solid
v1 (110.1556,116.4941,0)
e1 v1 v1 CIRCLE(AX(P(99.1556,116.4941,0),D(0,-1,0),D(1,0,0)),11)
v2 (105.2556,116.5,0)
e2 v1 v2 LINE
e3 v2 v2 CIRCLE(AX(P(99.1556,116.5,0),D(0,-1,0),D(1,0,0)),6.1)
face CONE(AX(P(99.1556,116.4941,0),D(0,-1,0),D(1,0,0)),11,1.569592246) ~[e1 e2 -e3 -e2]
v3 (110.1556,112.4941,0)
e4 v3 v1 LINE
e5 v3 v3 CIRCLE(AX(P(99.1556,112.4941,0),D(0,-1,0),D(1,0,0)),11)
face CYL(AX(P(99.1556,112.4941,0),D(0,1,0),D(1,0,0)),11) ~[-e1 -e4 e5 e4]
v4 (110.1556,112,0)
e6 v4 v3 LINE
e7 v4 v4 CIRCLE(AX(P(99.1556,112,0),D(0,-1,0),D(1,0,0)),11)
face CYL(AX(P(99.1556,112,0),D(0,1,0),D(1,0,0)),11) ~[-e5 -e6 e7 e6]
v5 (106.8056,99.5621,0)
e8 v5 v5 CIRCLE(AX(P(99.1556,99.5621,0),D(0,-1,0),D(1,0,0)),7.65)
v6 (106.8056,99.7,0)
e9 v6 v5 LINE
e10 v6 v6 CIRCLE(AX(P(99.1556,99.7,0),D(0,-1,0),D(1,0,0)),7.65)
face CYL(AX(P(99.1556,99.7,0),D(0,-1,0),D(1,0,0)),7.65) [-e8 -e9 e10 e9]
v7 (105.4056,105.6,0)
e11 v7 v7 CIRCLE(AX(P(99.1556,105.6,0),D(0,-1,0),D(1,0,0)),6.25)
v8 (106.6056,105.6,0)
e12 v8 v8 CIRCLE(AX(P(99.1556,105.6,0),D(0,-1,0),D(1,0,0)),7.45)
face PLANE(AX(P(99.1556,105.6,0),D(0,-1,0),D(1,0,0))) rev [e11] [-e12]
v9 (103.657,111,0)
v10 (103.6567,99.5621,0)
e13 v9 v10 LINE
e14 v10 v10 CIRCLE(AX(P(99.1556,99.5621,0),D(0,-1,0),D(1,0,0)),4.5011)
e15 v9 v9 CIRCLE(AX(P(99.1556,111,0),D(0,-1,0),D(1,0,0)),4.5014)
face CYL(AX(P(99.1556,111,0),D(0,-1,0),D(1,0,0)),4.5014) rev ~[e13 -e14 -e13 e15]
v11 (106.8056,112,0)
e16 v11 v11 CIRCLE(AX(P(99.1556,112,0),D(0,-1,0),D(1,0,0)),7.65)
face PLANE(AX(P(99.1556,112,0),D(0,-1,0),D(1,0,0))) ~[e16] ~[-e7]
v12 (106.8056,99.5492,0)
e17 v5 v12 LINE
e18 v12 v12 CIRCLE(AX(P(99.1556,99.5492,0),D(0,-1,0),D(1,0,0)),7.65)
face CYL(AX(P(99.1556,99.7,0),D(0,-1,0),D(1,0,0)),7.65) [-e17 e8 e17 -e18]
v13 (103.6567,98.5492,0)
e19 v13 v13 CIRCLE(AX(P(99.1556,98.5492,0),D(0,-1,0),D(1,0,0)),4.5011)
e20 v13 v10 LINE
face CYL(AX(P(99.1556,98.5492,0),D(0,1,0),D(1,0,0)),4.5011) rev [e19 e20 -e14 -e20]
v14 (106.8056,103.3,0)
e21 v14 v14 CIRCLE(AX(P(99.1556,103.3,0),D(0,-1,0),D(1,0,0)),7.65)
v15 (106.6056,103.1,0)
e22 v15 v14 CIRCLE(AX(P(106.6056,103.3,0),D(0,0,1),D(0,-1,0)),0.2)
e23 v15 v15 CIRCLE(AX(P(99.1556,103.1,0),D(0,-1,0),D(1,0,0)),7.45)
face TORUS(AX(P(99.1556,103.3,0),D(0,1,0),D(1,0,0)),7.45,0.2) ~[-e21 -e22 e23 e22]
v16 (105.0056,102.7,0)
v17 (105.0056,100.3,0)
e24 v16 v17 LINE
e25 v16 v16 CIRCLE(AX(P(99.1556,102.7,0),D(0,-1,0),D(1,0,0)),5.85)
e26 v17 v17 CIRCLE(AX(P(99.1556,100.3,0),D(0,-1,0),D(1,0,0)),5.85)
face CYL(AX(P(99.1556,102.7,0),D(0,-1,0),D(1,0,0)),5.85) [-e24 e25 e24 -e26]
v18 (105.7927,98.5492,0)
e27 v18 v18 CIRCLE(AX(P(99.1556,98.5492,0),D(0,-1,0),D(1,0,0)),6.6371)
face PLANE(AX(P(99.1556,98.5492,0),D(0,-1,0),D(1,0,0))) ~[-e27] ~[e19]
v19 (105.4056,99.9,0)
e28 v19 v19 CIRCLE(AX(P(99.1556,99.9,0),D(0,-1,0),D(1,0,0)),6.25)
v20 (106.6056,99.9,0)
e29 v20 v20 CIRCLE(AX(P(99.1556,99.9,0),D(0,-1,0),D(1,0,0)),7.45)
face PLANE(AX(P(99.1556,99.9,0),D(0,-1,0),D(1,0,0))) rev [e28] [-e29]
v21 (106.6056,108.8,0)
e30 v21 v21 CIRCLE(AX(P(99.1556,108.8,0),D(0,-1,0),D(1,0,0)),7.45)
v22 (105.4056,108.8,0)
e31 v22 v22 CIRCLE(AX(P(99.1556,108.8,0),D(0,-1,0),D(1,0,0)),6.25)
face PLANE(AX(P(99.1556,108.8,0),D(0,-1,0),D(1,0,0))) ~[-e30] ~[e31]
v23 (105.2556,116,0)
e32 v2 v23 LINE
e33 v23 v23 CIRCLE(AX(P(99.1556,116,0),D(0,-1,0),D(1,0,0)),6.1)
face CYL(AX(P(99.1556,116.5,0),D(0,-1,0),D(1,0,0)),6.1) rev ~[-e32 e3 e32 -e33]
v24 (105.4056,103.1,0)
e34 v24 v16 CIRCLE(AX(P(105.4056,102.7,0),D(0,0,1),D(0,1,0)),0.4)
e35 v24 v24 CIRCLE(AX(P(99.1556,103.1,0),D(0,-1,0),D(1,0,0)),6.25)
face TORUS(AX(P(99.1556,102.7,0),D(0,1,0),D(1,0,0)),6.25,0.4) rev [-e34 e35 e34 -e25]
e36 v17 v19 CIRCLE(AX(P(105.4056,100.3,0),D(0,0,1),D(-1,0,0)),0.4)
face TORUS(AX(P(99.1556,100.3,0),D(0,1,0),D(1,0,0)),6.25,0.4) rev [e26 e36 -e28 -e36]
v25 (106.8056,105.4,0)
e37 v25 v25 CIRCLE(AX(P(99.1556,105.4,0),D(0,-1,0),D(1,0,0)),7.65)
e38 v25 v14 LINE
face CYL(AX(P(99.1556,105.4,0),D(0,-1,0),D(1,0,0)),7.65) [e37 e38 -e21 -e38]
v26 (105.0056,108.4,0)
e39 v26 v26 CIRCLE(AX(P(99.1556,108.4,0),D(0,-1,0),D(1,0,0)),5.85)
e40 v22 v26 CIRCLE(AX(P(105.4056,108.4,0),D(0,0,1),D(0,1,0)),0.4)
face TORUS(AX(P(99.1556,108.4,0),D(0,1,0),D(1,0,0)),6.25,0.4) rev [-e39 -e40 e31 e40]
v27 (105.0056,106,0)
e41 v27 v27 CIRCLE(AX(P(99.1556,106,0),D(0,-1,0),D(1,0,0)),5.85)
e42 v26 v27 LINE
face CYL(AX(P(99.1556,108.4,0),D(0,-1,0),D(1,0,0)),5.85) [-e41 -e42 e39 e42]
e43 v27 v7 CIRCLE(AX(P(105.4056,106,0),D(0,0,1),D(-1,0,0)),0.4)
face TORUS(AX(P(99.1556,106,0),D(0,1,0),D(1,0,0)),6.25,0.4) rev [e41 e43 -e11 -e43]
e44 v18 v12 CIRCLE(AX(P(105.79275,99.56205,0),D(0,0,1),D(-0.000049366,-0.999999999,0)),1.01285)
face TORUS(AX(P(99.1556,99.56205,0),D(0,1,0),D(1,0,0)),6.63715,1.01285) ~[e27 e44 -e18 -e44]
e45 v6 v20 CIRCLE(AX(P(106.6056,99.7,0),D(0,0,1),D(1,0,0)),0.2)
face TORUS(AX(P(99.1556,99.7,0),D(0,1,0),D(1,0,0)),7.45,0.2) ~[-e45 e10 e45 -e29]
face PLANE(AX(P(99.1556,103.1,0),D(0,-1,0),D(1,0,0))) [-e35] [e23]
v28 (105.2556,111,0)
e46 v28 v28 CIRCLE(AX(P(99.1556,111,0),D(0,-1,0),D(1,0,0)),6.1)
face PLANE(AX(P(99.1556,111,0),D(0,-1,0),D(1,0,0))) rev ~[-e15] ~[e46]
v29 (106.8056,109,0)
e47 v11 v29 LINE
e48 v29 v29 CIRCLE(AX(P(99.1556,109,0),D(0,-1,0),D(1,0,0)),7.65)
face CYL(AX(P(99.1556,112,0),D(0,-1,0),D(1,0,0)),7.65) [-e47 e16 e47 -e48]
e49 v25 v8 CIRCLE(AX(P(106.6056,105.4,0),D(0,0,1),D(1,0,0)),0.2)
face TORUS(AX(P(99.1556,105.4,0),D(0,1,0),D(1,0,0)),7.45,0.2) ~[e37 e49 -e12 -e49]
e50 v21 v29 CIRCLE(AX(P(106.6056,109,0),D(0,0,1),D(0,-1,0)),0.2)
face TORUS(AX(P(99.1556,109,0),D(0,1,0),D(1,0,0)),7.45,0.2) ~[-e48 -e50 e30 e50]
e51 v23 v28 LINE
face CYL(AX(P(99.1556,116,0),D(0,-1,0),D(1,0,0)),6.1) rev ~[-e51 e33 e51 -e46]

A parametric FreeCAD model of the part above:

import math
import FreeCAD as App
import Part
import Sketcher
Q = App.Units.Quantity

doc = App.newDocument("Part")
params = doc.addObject("Spreadsheet::Sheet", "Params")
for row, (alias, value) in enumerate([
    ("sketch1_radius", "0.2 mm"),
    ("sketch1_radius2", "0.4 mm"),
    ("sketch1_height", "3 mm"),
    ("sketch1_width", "1.2 mm"),
    ("sketch1_height2", "5.5 mm"),
    ("revolution_angle", "360 deg"),
], start=1):
    params.set(f"A{row}", alias)
    params.set(f"B{row}", "=" + value)
    params.setAlias(f"B{row}", alias)

body = doc.addObject("PartDesign::Body", "Body")

# Sketch on XY plane
sketch1 = body.newObject("Sketcher::SketchObject", "Sketch")
sketch1.AttachmentSupport = (doc.getObject("XY_Plane"), [""])
sketch1.MapMode = "FlatFace"
sketch1.addGeometry([
    Part.LineSegment(App.Vector(106.81, 109, 0), App.Vector(106.81, 112, 0)),  # 0
    Part.LineSegment(App.Vector(106.81, 112, 0), App.Vector(110.16, 112, 0)),  # 1
    Part.LineSegment(App.Vector(110.16, 112, 0), App.Vector(110.16, 116.49, 0)),  # 2
    Part.LineSegment(App.Vector(110.16, 116.49, 0), App.Vector(105.26, 116.5, 0)),  # 3
    Part.LineSegment(App.Vector(105.26, 116.5, 0), App.Vector(105.26, 111, 0)),  # 4
    Part.LineSegment(App.Vector(105.26, 111, 0), App.Vector(103.66, 111, 0)),  # 5
    Part.LineSegment(App.Vector(103.66, 111, 0), App.Vector(103.66, 99.56, 0)),  # 6
    Part.LineSegment(App.Vector(103.66, 99.56, 0), App.Vector(103.66, 98.55, 0)),  # 7
    Part.LineSegment(App.Vector(103.66, 98.55, 0), App.Vector(105.79, 98.55, 0)),  # 8
    Part.ArcOfCircle(Part.Circle(App.Vector(105.79, 99.56, 0), App.Vector(0, 0, 1), 1.01), math.radians(-90), math.radians(-1)),  # 9
    Part.LineSegment(App.Vector(106.81, 99.55, 0), App.Vector(106.81, 99.7, 0)),  # 10
    Part.ArcOfCircle(Part.Circle(App.Vector(106.61, 99.7, 0), App.Vector(0, 0, 1), 0.2), math.radians(0), math.radians(90)),  # 11
    Part.LineSegment(App.Vector(106.61, 99.9, 0), App.Vector(105.41, 99.9, 0)),  # 12
    Part.ArcOfCircle(Part.Circle(App.Vector(105.41, 100.3, 0), App.Vector(0, 0, 1), 0.4), math.radians(180), math.radians(270)),  # 13
    Part.LineSegment(App.Vector(105.01, 100.3, 0), App.Vector(105.01, 102.7, 0)),  # 14
    Part.ArcOfCircle(Part.Circle(App.Vector(105.41, 102.7, 0), App.Vector(0, 0, 1), 0.4), math.radians(90), math.radians(180)),  # 15
    Part.LineSegment(App.Vector(105.41, 103.1, 0), App.Vector(106.61, 103.1, 0)),  # 16
    Part.ArcOfCircle(Part.Circle(App.Vector(106.61, 103.3, 0), App.Vector(0, 0, 1), 0.2), math.radians(-90), math.radians(0)),  # 17
    Part.LineSegment(App.Vector(106.81, 103.3, 0), App.Vector(106.81, 105.4, 0)),  # 18
    Part.ArcOfCircle(Part.Circle(App.Vector(106.61, 105.4, 0), App.Vector(0, 0, 1), 0.2), math.radians(0), math.radians(90)),  # 19
    Part.LineSegment(App.Vector(106.61, 105.6, 0), App.Vector(105.41, 105.6, 0)),  # 20
    Part.ArcOfCircle(Part.Circle(App.Vector(105.41, 106, 0), App.Vector(0, 0, 1), 0.4), math.radians(180), math.radians(270)),  # 21
    Part.LineSegment(App.Vector(105.01, 106, 0), App.Vector(105.01, 108.4, 0)),  # 22
    Part.ArcOfCircle(Part.Circle(App.Vector(105.41, 108.4, 0), App.Vector(0, 0, 1), 0.4), math.radians(90), math.radians(180)),  # 23
    Part.LineSegment(App.Vector(105.41, 108.8, 0), App.Vector(106.61, 108.8, 0)),  # 24
    Part.ArcOfCircle(Part.Circle(App.Vector(106.61, 109, 0), App.Vector(0, 0, 1), 0.2), math.radians(-90), math.radians(0)),  # 25
], False)
sketch1.addGeometry(Part.LineSegment(App.Vector(99.16, 116.5, 0), App.Vector(99.16, 98.55, 0)), True)  # axis
sketch1.addConstraint([
    Sketcher.Constraint("Coincident", 0, 2, 1, 1),
    Sketcher.Constraint("Coincident", 1, 2, 2, 1),
    Sketcher.Constraint("Coincident", 2, 2, 3, 1),
    Sketcher.Constraint("Coincident", 3, 2, 4, 1),
    Sketcher.Constraint("Coincident", 4, 2, 5, 1),
    Sketcher.Constraint("Coincident", 5, 2, 6, 1),
    Sketcher.Constraint("Coincident", 6, 2, 7, 1),
    Sketcher.Constraint("Coincident", 7, 2, 8, 1),
    Sketcher.Constraint("Tangent", 8, 2, 9, 1),
    Sketcher.Constraint("Coincident", 9, 2, 10, 1),
    Sketcher.Constraint("Tangent", 10, 2, 11, 1),
    Sketcher.Constraint("Tangent", 11, 2, 12, 1),
    Sketcher.Constraint("Tangent", 12, 2, 13, 2),
    Sketcher.Constraint("Tangent", 13, 1, 14, 1),
    Sketcher.Constraint("Tangent", 14, 2, 15, 2),
    Sketcher.Constraint("Tangent", 15, 1, 16, 1),
    Sketcher.Constraint("Tangent", 16, 2, 17, 1),
    Sketcher.Constraint("Tangent", 17, 2, 18, 1),
    Sketcher.Constraint("Tangent", 18, 2, 19, 1),
    Sketcher.Constraint("Tangent", 19, 2, 20, 1),
    Sketcher.Constraint("Tangent", 20, 2, 21, 2),
    Sketcher.Constraint("Tangent", 21, 1, 22, 1),
    Sketcher.Constraint("Tangent", 22, 2, 23, 2),
    Sketcher.Constraint("Tangent", 23, 1, 24, 1),
    Sketcher.Constraint("Tangent", 24, 2, 25, 1),
    Sketcher.Constraint("Tangent", 25, 2, 0, 1),
    Sketcher.Constraint("Vertical", 0),
    Sketcher.Constraint("Horizontal", 1),
    Sketcher.Constraint("Vertical", 2),
    Sketcher.Constraint("Vertical", 4),
    Sketcher.Constraint("Horizontal", 5),
    Sketcher.Constraint("Vertical", 7),
    Sketcher.Constraint("Horizontal", 8),
    Sketcher.Constraint("Vertical", 10),
    Sketcher.Constraint("Horizontal", 12),
    Sketcher.Constraint("Vertical", 14),
    Sketcher.Constraint("Horizontal", 16),
    Sketcher.Constraint("Vertical", 18),
    Sketcher.Constraint("Horizontal", 20),
    Sketcher.Constraint("Vertical", 22),
    Sketcher.Constraint("Horizontal", 24),
    Sketcher.Constraint("Vertical", 26),
    Sketcher.Constraint("Equal", 13, 15),
    Sketcher.Constraint("Equal", 11, 17),
    Sketcher.Constraint("Equal", 17, 19),
    Sketcher.Constraint("Equal", 15, 21),
    Sketcher.Constraint("Equal", 21, 23),
    Sketcher.Constraint("Equal", 19, 25),
    Sketcher.Constraint("Horizontal", 9, 3, 6, 2),
    Sketcher.Constraint("Horizontal", 3, 2, 26, 1),
    Sketcher.Constraint("Horizontal", 8, 2, 26, 2),
    Sketcher.Constraint("Vertical", 11, 3, 17, 3),
    Sketcher.Constraint("Vertical", 15, 3, 21, 3),
    Sketcher.Constraint("Vertical", 19, 3, 25, 3),
    Sketcher.Constraint("Equal", 14, 22),
    Sketcher.Constraint("Radius", 11, Q("0.2 mm")),
    Sketcher.Constraint("Radius", 13, Q("0.4 mm")),
    Sketcher.Constraint("DistanceY", 21, 3, 4, 2, Q("5 mm")),
    Sketcher.Constraint("DistanceY", 0, 1, 0, 2, Q("3 mm")),
    Sketcher.Constraint("DistanceX", 12, 2, 12, 1, Q("1.2 mm")),
    Sketcher.Constraint("DistanceY", 4, 2, 4, 1, Q("5.5 mm")),
    Sketcher.Constraint("DistanceY", 14, 1, 14, 2, Q("2.4 mm")),
    Sketcher.Constraint("DistanceY", 18, 1, 18, 2, Q("2.1 mm")),
    Sketcher.Constraint("DistanceY", -1, 1, 21, 3, Q("106 mm")),
    Sketcher.Constraint("Radius", 9, Q("1.013 mm")),
    Sketcher.Constraint("DistanceY", 8, 2, 9, 2, Q("1 mm")),
    Sketcher.Constraint("Distance", 3, Q("4.9 mm")),
    Sketcher.Constraint("DistanceX", 1, 1, 1, 2, Q("3.35 mm")),
    Sketcher.Constraint("Angle", 3, Q("179.931 deg")),
    Sketcher.Constraint("DistanceX", 26, 1, 3, 2, Q("6.1 mm")),
    Sketcher.Constraint("DistanceX", 8, 1, 8, 2, Q("2.136 mm")),
    Sketcher.Constraint("Distance", 6, Q("11.438 mm")),
    Sketcher.Constraint("DistanceX", 5, 2, 5, 1, Q("1.5986 mm")),
    Sketcher.Constraint("DistanceX", -1, 1, 5, 2, Q("103.657 mm")),
])
sketch1.setExpression("Constraints[55]", "Params.sketch1_radius")
sketch1.setExpression("Constraints[56]", "Params.sketch1_radius2")
sketch1.setExpression("Constraints[58]", "Params.sketch1_height")
sketch1.setExpression("Constraints[59]", "Params.sketch1_width")
sketch1.setExpression("Constraints[60]", "Params.sketch1_height2")
revolution = body.newObject("PartDesign::Revolution", "Revolution")
revolution.Profile = sketch1
revolution.ReferenceAxis = (sketch1, ["Axis0"])
revolution.setExpression("Angle", "Params.revolution_angle")

doc.recompute()
